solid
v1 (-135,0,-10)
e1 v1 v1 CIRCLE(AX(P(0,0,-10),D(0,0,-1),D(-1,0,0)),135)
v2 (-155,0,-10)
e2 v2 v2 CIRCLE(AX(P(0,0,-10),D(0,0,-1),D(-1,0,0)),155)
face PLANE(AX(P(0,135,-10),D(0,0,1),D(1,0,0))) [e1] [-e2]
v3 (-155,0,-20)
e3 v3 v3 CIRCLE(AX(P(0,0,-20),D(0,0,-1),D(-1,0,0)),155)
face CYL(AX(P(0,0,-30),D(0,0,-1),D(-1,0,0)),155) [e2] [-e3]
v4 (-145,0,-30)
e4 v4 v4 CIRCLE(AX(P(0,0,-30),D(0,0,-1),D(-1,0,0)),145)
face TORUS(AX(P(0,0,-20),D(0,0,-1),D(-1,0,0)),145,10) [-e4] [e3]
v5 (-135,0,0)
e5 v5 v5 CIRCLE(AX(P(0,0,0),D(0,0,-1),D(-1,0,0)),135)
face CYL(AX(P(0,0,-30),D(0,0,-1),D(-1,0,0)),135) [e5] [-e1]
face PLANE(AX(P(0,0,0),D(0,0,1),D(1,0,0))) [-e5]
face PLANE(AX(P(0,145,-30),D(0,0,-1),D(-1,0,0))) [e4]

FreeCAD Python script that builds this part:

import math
import FreeCAD as App
import Part
import Sketcher
from FreeCAD import Vector
Q = App.Units.Quantity

doc = App.newDocument("Part")
params = doc.addObject("Spreadsheet::Sheet", "Params")
for row, (alias, value) in enumerate([
    ("sketch1_radius", "10 mm"),
    ("sketch1_width", "135 mm"),
    ("sketch1_width2", "145 mm"),
    ("sketch1_height", "30 mm"),
    ("revolution_angle", "360 deg"),
], start=1):
    params.set(f"A{row}", alias)
    params.set(f"B{row}", "=" + value)
    params.setAlias(f"B{row}", alias)

body = doc.addObject("PartDesign::Body", "Body")

# Sketch on YZ plane
sketch1 = body.newObject("Sketcher::SketchObject", "Sketch")
sketch1.AttachmentSupport = (doc.getObject("YZ_Plane"), [""])
sketch1.MapMode = "FlatFace"
sketch1.addGeometry(Part.LineSegment(Vector(135, 0, 0), Vector(0, 0, 0)), False)
sketch1.addGeometry(Part.LineSegment(Vector(0, 0, 0), Vector(0, -30, 0)), False)
sketch1.addGeometry(Part.LineSegment(Vector(0, -30, 0), Vector(145, -30, 0)), False)
sketch1.addGeometry(Part.ArcOfCircle(Part.Circle(Vector(145, -20, 0), Vector(0, 0, 1), 10), math.radians(-90), math.radians(0)), False)
sketch1.addGeometry(Part.LineSegment(Vector(155, -20, 0), Vector(155, -10, 0)), False)
sketch1.addGeometry(Part.LineSegment(Vector(155, -10, 0), Vector(135, -10, 0)), False)
sketch1.addGeometry(Part.LineSegment(Vector(135, -10, 0), Vector(135, 0, 0)), False)
sketch1.addConstraint(Sketcher.Constraint("Coincident", 0, 2, 1, 1))
sketch1.addConstraint(Sketcher.Constraint("Coincident", 1, 2, 2, 1))
sketch1.addConstraint(Sketcher.Constraint("Tangent", 2, 2, 3, 1))
sketch1.addConstraint(Sketcher.Constraint("Tangent", 3, 2, 4, 1))
sketch1.addConstraint(Sketcher.Constraint("Coincident", 4, 2, 5, 1))
sketch1.addConstraint(Sketcher.Constraint("Coincident", 5, 2, 6, 1))
sketch1.addConstraint(Sketcher.Constraint("Coincident", 6, 2, 0, 1))
sketch1.addConstraint(Sketcher.Constraint("Horizontal", 0))
sketch1.addConstraint(Sketcher.Constraint("Vertical", 1))
sketch1.addConstraint(Sketcher.Constraint("Horizontal", 2))
sketch1.addConstraint(Sketcher.Constraint("Vertical", 4))
sketch1.addConstraint(Sketcher.Constraint("Horizontal", 5))
sketch1.addConstraint(Sketcher.Constraint("Vertical", 6))
sketch1.addConstraint(Sketcher.Constraint("Coincident", 0, 2, -1, 1))
sketch1.addConstraint(Sketcher.Constraint("Equal", 4, 6))
sketch1.addConstraint(Sketcher.Constraint("Radius", 3, Q("10 mm")))
sketch1.addConstraint(Sketcher.Constraint("DistanceX", 0, 2, 0, 1, Q("135 mm")))
sketch1.addConstraint(Sketcher.Constraint("DistanceX", 2, 1, 2, 2, Q("145 mm")))
sketch1.addConstraint(Sketcher.Constraint("DistanceY", 1, 2, 1, 1, Q("30 mm")))
sketch1.setExpression("Constraints[15]", "Params.sketch1_radius")
sketch1.setExpression("Constraints[16]", "Params.sketch1_width")
sketch1.setExpression("Constraints[17]", "Params.sketch1_width2")
sketch1.setExpression("Constraints[18]", "Params.sketch1_height")
revolution = body.newObject("PartDesign::Revolution", "Revolution")
revolution.Profile = sketch1
revolution.ReferenceAxis = (sketch1, ["V_Axis"])
revolution.setExpression("Angle", "Params.revolution_angle")

doc.recompute()
